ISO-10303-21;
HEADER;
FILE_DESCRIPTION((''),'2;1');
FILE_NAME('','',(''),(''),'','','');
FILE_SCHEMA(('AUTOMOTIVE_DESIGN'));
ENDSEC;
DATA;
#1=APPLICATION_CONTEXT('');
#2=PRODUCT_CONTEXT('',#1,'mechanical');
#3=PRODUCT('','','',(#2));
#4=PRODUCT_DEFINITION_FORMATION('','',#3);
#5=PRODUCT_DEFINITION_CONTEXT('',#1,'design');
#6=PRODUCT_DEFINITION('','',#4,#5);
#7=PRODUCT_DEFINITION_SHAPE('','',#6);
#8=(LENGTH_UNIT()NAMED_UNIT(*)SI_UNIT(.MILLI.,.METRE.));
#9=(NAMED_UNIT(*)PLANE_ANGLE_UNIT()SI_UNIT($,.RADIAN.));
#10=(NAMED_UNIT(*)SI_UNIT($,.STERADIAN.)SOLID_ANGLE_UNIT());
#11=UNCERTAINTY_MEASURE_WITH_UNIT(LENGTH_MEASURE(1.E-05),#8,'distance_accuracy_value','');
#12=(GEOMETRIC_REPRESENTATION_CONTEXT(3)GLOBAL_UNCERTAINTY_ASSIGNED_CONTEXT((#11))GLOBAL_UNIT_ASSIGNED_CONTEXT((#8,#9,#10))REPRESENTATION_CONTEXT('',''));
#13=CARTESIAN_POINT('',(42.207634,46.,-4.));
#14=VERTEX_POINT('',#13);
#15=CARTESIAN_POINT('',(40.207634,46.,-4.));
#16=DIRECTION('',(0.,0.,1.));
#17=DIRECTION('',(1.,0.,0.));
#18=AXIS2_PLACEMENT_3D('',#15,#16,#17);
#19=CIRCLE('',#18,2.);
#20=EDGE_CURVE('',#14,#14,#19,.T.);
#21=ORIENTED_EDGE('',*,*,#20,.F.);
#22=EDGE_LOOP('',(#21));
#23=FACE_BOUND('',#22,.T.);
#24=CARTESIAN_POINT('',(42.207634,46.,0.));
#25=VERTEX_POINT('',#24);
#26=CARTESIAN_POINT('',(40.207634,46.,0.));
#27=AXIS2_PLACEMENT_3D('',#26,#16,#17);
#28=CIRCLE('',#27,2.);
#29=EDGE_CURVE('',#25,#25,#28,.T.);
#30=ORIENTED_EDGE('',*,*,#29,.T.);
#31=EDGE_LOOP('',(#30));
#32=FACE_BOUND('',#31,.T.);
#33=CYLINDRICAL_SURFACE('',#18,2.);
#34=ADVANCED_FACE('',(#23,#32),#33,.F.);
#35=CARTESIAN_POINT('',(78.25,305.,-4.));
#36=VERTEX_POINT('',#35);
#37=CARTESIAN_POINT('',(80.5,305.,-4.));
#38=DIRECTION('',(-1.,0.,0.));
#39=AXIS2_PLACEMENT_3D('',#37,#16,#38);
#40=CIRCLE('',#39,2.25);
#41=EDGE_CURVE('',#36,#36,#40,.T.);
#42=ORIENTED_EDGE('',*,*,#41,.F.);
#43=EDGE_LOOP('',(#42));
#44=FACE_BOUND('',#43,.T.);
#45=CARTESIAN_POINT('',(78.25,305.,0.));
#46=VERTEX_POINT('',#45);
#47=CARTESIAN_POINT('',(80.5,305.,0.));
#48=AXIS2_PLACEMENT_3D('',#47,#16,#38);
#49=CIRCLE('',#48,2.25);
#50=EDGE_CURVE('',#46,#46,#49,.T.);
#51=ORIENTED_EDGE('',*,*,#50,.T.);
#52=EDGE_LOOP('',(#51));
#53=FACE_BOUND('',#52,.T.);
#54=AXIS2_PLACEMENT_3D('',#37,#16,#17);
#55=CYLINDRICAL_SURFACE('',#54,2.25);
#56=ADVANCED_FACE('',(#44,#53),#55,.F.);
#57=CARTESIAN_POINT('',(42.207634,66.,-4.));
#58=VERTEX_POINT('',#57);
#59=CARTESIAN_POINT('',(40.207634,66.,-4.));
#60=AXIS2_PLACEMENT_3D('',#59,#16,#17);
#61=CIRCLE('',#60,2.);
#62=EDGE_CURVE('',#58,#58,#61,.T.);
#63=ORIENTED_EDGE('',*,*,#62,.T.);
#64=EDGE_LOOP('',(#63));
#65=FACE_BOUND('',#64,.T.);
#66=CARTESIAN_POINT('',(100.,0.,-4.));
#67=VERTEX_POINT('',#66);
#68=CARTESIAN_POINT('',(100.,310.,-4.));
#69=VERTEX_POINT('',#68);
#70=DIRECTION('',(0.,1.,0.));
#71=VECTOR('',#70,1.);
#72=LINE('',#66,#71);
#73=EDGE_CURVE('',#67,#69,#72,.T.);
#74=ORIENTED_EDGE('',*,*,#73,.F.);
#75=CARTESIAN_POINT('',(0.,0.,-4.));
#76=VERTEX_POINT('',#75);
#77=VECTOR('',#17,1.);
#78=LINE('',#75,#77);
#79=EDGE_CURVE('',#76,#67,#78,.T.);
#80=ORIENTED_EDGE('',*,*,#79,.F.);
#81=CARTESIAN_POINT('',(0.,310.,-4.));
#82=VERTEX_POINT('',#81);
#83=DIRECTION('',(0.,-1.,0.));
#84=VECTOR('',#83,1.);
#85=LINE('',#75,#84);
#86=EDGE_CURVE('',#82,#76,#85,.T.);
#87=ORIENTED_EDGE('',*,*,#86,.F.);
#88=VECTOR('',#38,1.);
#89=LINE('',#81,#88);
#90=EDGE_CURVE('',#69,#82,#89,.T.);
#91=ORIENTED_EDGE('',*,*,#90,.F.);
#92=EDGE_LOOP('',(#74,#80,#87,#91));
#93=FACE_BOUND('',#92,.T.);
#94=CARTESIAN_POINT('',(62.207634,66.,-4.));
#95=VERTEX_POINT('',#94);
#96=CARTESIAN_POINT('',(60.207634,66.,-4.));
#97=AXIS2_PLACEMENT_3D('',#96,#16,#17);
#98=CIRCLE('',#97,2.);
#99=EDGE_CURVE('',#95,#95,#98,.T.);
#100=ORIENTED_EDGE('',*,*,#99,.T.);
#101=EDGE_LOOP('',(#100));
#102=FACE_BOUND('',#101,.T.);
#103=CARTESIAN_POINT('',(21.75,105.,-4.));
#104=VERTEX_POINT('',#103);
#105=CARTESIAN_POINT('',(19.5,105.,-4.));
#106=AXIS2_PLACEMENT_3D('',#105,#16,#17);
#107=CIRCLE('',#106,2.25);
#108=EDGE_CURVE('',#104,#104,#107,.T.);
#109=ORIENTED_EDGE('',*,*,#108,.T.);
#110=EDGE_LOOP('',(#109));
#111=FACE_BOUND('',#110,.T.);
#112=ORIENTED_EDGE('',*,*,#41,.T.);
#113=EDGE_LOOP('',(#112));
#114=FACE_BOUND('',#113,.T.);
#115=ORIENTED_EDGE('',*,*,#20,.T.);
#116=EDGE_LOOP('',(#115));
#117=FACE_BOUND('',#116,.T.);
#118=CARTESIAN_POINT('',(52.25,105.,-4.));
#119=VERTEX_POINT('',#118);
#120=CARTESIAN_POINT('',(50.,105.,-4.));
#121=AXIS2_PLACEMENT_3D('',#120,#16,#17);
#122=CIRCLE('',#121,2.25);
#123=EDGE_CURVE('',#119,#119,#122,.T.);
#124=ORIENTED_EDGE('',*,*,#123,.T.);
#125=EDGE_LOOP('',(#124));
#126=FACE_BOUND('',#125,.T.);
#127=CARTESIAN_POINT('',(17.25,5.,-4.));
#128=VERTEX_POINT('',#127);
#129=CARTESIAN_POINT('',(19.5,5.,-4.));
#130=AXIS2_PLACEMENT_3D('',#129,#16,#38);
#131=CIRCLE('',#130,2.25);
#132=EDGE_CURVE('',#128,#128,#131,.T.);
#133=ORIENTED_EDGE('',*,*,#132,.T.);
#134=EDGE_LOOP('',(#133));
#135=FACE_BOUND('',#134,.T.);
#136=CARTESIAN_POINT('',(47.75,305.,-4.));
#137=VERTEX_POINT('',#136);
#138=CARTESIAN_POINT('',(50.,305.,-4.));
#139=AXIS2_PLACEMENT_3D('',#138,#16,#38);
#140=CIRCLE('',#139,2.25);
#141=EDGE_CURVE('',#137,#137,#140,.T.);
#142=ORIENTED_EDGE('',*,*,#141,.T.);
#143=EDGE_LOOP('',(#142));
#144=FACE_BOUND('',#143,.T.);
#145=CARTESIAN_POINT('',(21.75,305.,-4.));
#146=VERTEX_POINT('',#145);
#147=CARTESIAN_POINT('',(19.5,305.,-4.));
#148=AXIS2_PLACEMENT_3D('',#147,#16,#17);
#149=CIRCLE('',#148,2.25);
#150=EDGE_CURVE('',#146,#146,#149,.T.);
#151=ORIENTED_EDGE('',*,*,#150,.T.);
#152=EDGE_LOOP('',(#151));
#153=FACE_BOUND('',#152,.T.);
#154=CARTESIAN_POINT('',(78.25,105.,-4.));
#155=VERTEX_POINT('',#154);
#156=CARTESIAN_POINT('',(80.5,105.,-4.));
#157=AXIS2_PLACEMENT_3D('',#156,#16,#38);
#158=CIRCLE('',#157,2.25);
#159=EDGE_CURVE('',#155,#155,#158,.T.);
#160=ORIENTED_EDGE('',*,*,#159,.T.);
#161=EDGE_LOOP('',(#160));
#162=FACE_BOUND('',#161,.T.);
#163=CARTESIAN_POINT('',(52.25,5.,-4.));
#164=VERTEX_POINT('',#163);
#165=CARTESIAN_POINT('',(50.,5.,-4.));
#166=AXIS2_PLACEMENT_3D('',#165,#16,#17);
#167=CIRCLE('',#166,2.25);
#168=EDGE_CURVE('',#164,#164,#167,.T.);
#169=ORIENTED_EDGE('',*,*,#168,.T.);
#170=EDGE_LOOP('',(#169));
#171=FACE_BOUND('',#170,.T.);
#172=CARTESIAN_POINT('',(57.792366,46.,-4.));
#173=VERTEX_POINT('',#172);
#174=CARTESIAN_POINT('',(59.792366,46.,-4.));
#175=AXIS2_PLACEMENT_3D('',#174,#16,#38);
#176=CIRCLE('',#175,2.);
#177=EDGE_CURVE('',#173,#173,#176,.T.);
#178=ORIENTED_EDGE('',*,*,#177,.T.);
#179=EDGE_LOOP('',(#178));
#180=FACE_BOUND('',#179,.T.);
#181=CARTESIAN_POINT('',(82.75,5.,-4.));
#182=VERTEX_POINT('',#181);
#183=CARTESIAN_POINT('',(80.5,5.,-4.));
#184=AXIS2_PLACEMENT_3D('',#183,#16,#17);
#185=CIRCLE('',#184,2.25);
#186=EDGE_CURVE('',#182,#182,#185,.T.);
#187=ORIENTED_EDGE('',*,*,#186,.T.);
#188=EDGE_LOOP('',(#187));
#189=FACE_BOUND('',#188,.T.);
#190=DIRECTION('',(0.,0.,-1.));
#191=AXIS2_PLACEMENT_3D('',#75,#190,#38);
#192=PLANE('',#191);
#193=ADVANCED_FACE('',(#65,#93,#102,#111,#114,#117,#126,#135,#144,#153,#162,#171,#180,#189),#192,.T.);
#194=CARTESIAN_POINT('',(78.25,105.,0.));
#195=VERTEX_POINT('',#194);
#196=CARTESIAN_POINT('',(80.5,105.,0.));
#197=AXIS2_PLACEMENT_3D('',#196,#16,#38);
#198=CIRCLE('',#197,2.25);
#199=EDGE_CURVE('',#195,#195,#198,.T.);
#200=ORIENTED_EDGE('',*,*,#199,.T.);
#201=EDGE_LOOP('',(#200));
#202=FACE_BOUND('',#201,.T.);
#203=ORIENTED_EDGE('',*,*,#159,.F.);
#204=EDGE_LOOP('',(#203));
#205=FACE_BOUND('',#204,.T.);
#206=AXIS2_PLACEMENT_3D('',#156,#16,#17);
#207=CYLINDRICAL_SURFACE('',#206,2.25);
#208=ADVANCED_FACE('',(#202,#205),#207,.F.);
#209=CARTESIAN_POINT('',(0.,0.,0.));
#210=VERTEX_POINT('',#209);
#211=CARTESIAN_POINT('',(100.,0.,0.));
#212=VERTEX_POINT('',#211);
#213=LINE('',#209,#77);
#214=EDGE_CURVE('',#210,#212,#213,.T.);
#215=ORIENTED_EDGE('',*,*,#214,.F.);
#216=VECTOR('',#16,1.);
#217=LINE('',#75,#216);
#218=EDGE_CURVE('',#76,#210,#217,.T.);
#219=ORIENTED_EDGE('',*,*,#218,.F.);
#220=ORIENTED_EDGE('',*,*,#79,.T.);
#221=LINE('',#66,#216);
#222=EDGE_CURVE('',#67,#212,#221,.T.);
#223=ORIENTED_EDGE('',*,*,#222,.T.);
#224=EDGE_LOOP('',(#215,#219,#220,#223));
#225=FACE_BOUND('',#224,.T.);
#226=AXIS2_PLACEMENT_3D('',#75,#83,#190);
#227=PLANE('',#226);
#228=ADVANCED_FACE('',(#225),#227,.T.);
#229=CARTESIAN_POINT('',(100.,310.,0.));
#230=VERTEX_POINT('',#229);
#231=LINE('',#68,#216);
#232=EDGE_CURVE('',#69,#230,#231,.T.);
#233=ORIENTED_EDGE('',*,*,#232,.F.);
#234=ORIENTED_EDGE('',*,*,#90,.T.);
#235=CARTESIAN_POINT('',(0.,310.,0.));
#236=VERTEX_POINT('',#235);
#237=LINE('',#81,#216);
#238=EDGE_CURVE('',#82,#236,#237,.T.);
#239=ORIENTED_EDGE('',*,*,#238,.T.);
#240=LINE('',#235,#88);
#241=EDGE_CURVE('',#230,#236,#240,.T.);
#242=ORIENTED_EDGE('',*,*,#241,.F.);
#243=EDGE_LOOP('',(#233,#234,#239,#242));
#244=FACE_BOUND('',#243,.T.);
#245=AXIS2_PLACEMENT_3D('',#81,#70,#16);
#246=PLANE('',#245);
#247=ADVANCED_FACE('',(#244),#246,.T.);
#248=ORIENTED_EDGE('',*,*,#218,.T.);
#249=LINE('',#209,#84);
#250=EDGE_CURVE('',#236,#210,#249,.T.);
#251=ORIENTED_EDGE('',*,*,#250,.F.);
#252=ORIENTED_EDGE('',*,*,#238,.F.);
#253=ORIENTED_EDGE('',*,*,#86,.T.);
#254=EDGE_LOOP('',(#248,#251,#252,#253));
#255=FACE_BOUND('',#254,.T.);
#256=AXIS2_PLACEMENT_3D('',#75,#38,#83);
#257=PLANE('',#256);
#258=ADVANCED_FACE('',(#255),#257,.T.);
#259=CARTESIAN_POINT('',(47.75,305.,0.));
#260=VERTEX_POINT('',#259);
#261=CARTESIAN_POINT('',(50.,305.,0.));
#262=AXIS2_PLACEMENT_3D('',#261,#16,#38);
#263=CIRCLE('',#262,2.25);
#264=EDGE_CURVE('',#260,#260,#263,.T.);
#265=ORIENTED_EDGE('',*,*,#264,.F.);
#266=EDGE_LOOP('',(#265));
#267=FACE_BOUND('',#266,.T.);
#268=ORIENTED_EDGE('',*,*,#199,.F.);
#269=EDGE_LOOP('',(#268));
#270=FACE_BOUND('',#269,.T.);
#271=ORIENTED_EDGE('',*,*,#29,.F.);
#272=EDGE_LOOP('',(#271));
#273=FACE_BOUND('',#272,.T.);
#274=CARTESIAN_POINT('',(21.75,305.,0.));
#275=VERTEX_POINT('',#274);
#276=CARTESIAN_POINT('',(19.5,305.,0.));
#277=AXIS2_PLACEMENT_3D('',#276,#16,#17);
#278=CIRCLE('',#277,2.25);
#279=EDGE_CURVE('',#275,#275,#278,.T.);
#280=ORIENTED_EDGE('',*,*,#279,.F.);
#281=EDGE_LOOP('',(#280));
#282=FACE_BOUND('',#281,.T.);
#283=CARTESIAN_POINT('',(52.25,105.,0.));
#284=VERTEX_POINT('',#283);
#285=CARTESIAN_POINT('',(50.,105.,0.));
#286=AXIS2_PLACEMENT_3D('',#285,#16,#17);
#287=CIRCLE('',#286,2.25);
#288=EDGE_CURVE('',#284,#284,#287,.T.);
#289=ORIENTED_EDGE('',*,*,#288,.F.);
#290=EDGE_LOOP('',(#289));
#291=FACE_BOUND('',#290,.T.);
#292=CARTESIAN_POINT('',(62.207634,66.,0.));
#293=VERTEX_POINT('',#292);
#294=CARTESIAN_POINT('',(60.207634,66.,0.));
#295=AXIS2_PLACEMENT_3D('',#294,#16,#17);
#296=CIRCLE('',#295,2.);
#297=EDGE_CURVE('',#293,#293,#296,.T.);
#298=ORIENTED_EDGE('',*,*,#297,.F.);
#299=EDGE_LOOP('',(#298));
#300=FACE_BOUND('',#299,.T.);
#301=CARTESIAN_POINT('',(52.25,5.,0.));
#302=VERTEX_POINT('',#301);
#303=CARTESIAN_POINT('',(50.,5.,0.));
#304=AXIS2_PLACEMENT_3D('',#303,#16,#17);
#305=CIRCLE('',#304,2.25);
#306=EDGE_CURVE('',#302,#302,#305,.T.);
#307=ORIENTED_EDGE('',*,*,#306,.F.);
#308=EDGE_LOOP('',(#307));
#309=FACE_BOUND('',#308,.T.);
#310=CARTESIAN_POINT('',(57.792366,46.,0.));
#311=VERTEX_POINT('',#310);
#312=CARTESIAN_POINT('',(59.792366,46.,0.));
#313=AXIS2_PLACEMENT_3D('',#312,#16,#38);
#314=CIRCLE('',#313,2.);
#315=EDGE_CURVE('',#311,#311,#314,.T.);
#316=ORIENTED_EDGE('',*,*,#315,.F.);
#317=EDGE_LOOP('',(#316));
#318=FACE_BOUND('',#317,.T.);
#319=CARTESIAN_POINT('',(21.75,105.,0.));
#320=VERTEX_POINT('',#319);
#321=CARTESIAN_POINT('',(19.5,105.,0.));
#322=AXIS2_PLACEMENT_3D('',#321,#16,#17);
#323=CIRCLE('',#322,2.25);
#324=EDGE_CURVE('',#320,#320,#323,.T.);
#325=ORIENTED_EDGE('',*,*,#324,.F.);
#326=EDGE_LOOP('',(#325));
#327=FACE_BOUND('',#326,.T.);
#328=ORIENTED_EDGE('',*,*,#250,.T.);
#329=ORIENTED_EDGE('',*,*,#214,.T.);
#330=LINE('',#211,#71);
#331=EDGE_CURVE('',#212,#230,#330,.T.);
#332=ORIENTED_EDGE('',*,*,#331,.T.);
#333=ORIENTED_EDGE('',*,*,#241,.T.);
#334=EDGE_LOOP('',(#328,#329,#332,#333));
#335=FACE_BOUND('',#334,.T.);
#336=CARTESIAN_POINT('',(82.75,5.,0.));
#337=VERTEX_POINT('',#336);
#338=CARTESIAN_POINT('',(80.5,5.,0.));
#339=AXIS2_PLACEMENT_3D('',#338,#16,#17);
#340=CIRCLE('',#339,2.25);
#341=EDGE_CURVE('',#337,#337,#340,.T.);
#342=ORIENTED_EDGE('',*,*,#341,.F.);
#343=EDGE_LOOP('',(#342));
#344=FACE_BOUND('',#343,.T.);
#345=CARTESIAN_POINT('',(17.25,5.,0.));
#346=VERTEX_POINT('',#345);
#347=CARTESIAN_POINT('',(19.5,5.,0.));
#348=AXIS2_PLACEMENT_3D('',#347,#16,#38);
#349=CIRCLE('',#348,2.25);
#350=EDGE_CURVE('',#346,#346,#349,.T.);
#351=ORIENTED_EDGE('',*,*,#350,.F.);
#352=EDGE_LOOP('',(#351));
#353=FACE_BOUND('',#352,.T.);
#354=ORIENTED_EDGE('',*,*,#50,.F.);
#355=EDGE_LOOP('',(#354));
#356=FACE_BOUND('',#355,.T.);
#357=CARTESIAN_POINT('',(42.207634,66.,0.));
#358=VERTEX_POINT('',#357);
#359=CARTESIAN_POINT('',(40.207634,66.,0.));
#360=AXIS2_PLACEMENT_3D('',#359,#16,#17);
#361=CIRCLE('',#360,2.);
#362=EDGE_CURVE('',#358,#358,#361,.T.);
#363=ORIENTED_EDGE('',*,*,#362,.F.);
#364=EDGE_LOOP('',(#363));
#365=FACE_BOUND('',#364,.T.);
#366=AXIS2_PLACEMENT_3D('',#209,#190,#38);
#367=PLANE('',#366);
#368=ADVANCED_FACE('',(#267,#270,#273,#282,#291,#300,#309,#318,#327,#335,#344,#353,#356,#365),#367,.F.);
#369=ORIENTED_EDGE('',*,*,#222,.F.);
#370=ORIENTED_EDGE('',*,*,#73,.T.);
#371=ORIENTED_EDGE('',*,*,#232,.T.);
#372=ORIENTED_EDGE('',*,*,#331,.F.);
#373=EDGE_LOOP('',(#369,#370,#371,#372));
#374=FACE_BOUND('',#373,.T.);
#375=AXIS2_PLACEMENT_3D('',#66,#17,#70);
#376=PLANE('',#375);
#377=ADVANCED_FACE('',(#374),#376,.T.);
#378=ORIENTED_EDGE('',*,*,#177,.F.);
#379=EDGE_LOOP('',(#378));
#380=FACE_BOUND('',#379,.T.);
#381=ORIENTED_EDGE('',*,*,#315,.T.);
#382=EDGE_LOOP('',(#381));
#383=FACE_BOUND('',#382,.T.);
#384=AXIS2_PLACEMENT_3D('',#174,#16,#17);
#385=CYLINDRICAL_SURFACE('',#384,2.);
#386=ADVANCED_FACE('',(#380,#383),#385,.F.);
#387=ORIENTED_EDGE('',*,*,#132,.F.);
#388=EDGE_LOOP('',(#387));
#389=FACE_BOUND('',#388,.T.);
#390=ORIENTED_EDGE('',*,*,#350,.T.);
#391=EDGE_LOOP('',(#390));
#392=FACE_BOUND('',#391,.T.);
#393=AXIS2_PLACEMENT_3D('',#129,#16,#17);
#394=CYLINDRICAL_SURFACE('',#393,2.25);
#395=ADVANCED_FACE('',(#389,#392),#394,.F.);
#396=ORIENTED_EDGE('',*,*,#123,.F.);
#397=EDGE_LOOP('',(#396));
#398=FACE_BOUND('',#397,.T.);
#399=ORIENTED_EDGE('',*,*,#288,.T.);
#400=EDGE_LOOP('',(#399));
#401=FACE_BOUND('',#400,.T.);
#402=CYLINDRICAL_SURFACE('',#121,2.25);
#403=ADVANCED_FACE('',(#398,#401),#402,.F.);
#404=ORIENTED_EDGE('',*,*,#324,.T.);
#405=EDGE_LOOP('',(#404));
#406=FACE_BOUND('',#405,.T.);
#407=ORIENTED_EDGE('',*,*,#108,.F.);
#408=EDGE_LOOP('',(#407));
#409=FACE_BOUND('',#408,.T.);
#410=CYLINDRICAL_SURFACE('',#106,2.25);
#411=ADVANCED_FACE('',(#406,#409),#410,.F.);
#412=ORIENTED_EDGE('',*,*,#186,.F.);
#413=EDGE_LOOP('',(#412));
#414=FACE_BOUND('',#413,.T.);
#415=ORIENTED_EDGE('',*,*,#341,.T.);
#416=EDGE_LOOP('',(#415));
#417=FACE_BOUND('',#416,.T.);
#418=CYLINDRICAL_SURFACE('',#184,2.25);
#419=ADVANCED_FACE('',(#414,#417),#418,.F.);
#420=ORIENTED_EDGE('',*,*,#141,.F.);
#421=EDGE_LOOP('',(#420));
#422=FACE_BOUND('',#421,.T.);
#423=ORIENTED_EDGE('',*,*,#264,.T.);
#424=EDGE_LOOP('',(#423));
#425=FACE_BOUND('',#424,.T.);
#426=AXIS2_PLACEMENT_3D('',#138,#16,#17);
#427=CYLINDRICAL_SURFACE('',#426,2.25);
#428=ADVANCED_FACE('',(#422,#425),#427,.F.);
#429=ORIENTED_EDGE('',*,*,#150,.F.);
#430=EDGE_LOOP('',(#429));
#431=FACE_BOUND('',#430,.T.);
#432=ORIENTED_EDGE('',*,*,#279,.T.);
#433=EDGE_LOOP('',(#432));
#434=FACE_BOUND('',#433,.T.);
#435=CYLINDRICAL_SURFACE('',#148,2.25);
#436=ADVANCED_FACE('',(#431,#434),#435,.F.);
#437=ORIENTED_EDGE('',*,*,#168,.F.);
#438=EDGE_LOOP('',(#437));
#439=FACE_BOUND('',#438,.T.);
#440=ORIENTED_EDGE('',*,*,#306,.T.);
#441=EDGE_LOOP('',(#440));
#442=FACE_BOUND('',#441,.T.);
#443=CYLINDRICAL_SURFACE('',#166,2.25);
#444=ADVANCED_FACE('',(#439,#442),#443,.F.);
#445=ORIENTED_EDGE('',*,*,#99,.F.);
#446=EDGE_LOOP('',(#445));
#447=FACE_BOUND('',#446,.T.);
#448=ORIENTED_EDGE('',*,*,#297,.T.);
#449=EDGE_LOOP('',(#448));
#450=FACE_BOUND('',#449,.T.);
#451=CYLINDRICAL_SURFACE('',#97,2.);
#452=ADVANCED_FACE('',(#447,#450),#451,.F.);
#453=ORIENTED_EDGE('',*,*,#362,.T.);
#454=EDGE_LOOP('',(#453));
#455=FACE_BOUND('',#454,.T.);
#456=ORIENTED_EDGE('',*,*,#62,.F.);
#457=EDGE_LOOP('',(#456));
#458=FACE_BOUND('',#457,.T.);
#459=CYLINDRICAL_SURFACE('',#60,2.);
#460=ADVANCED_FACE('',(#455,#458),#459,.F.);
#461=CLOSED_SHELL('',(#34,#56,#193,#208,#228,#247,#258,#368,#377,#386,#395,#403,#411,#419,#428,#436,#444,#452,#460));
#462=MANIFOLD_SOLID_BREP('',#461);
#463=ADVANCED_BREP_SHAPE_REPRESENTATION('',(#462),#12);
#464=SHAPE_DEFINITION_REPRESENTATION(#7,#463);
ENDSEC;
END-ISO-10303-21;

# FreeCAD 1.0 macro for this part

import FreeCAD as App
import Part
import Sketcher

V = App.Vector
Q = App.Units.Quantity

doc = App.newDocument("Part")
body = doc.addObject("PartDesign::Body", "Body")

# Sketch on XY plane
sketch1 = body.newObject("Sketcher::SketchObject", "Sketch")
sketch1.AttachmentSupport = (doc.getObject("XY_Plane"), [""])
sketch1.MapMode = "FlatFace"
sketch1.addGeometry([
    Part.LineSegment(V(0, 310, 0), V(0, 0, 0)),  # 0
    Part.LineSegment(V(0, 0, 0), V(100, 0, 0)),  # 1
    Part.LineSegment(V(100, 0, 0), V(100, 310, 0)),  # 2
    Part.LineSegment(V(100, 310, 0), V(0, 310, 0)),  # 3
    Part.Circle(V(19.5, 5, 0), V(0, 0, 1), 2.2),  # 4
    Part.Circle(V(40.2, 46, 0), V(0, 0, 1), 2),  # 5
    Part.Circle(V(40.2, 66, 0), V(0, 0, 1), 2),  # 6
    Part.Circle(V(19.5, 105, 0), V(0, 0, 1), 2.2),  # 7
    Part.Circle(V(50, 5, 0), V(0, 0, 1), 2.2),  # 8
    Part.Circle(V(59.8, 46, 0), V(0, 0, 1), 2),  # 9
    Part.Circle(V(60.2, 66, 0), V(0, 0, 1), 2),  # 10
    Part.Circle(V(80.5, 5, 0), V(0, 0, 1), 2.2),  # 11
    Part.Circle(V(50, 105, 0), V(0, 0, 1), 2.2),  # 12
    Part.Circle(V(80.5, 105, 0), V(0, 0, 1), 2.2),  # 13
    Part.Circle(V(19.5, 305, 0), V(0, 0, 1), 2.2),  # 14
    Part.Circle(V(50, 305, 0), V(0, 0, 1), 2.2),  # 15
    Part.Circle(V(80.5, 305, 0), V(0, 0, 1), 2.2),  # 16
], False)
sketch1.addConstraint([
    Sketcher.Constraint("Coincident", 0, 2, 1, 1),
    Sketcher.Constraint("Coincident", 1, 2, 2, 1),
    Sketcher.Constraint("Coincident", 2, 2, 3, 1),
    Sketcher.Constraint("Coincident", 3, 2, 0, 1),
    Sketcher.Constraint("Vertical", 0),
    Sketcher.Constraint("Horizontal", 1),
    Sketcher.Constraint("Vertical", 2),
    Sketcher.Constraint("Horizontal", 3),
    Sketcher.Constraint("Coincident", 0, 2, -1, 1),
    Sketcher.Constraint("Equal", 5, 6),
    Sketcher.Constraint("Equal", 4, 7),
    Sketcher.Constraint("Equal", 7, 8),
    Sketcher.Constraint("Equal", 6, 9),
    Sketcher.Constraint("Equal", 9, 10),
    Sketcher.Constraint("Equal", 8, 11),
    Sketcher.Constraint("Equal", 11, 12),
    Sketcher.Constraint("Equal", 12, 13),
    Sketcher.Constraint("Equal", 13, 14),
    Sketcher.Constraint("Equal", 14, 15),
    Sketcher.Constraint("Equal", 15, 16),
    Sketcher.Constraint("Horizontal", 4, 3, 8, 3),
    Sketcher.Constraint("Horizontal", 5, 3, 9, 3),
    Sketcher.Constraint("Horizontal", 6, 3, 10, 3),
    Sketcher.Constraint("Horizontal", 8, 3, 11, 3),
    Sketcher.Constraint("Horizontal", 7, 3, 12, 3),
    Sketcher.Constraint("Horizontal", 12, 3, 13, 3),
    Sketcher.Constraint("Horizontal", 14, 3, 15, 3),
    Sketcher.Constraint("Horizontal", 15, 3, 16, 3),
    Sketcher.Constraint("Vertical", 5, 3, 6, 3),
    Sketcher.Constraint("Vertical", 4, 3, 7, 3),
    Sketcher.Constraint("Vertical", 8, 3, 12, 3),
    Sketcher.Constraint("Vertical", 11, 3, 13, 3),
    Sketcher.Constraint("Vertical", 7, 3, 14, 3),
    Sketcher.Constraint("Vertical", 12, 3, 15, 3),
    Sketcher.Constraint("Vertical", 13, 3, 16, 3),
    Sketcher.Constraint("Diameter", 5, Q("4 mm")),
    Sketcher.Constraint("Diameter", 4, Q("4.5 mm")),
    Sketcher.Constraint("DistanceX", 1, 1, 1, 2, Q("100 mm")),
    Sketcher.Constraint("DistanceY", 0, 2, 0, 1, Q("310 mm")),
    Sketcher.Constraint("DistanceY", -1, 1, 4, 3, Q("5 mm")),
    Sketcher.Constraint("DistanceY", -1, 1, 5, 3, Q("46 mm")),
    Sketcher.Constraint("DistanceY", -1, 1, 6, 3, Q("66 mm")),
    Sketcher.Constraint("DistanceY", -1, 1, 7, 3, Q("105 mm")),
    Sketcher.Constraint("DistanceX", -1, 1, 8, 3, Q("50 mm")),
    Sketcher.Constraint("DistanceY", -1, 1, 14, 3, Q("305 mm")),
    Sketcher.Constraint("DistanceX", 6, 3, 10, 3, Q("20 mm")),
    Sketcher.Constraint("DistanceX", 4, 3, 11, 3, Q("61 mm")),
    Sketcher.Constraint("DistanceX", -1, 1, 4, 3, Q("19.5 mm")),
    Sketcher.Constraint("DistanceX", 5, 3, 9, 3, Q("19.584731 mm")),
    Sketcher.Constraint("DistanceX", -1, 1, 5, 3, Q("40.207634 mm")),
])
pad1 = body.newObject("PartDesign::Pad", "Pad")
pad1.Profile = sketch1
pad1.Length = 4
pad1.Reversed = True

doc.recompute()
